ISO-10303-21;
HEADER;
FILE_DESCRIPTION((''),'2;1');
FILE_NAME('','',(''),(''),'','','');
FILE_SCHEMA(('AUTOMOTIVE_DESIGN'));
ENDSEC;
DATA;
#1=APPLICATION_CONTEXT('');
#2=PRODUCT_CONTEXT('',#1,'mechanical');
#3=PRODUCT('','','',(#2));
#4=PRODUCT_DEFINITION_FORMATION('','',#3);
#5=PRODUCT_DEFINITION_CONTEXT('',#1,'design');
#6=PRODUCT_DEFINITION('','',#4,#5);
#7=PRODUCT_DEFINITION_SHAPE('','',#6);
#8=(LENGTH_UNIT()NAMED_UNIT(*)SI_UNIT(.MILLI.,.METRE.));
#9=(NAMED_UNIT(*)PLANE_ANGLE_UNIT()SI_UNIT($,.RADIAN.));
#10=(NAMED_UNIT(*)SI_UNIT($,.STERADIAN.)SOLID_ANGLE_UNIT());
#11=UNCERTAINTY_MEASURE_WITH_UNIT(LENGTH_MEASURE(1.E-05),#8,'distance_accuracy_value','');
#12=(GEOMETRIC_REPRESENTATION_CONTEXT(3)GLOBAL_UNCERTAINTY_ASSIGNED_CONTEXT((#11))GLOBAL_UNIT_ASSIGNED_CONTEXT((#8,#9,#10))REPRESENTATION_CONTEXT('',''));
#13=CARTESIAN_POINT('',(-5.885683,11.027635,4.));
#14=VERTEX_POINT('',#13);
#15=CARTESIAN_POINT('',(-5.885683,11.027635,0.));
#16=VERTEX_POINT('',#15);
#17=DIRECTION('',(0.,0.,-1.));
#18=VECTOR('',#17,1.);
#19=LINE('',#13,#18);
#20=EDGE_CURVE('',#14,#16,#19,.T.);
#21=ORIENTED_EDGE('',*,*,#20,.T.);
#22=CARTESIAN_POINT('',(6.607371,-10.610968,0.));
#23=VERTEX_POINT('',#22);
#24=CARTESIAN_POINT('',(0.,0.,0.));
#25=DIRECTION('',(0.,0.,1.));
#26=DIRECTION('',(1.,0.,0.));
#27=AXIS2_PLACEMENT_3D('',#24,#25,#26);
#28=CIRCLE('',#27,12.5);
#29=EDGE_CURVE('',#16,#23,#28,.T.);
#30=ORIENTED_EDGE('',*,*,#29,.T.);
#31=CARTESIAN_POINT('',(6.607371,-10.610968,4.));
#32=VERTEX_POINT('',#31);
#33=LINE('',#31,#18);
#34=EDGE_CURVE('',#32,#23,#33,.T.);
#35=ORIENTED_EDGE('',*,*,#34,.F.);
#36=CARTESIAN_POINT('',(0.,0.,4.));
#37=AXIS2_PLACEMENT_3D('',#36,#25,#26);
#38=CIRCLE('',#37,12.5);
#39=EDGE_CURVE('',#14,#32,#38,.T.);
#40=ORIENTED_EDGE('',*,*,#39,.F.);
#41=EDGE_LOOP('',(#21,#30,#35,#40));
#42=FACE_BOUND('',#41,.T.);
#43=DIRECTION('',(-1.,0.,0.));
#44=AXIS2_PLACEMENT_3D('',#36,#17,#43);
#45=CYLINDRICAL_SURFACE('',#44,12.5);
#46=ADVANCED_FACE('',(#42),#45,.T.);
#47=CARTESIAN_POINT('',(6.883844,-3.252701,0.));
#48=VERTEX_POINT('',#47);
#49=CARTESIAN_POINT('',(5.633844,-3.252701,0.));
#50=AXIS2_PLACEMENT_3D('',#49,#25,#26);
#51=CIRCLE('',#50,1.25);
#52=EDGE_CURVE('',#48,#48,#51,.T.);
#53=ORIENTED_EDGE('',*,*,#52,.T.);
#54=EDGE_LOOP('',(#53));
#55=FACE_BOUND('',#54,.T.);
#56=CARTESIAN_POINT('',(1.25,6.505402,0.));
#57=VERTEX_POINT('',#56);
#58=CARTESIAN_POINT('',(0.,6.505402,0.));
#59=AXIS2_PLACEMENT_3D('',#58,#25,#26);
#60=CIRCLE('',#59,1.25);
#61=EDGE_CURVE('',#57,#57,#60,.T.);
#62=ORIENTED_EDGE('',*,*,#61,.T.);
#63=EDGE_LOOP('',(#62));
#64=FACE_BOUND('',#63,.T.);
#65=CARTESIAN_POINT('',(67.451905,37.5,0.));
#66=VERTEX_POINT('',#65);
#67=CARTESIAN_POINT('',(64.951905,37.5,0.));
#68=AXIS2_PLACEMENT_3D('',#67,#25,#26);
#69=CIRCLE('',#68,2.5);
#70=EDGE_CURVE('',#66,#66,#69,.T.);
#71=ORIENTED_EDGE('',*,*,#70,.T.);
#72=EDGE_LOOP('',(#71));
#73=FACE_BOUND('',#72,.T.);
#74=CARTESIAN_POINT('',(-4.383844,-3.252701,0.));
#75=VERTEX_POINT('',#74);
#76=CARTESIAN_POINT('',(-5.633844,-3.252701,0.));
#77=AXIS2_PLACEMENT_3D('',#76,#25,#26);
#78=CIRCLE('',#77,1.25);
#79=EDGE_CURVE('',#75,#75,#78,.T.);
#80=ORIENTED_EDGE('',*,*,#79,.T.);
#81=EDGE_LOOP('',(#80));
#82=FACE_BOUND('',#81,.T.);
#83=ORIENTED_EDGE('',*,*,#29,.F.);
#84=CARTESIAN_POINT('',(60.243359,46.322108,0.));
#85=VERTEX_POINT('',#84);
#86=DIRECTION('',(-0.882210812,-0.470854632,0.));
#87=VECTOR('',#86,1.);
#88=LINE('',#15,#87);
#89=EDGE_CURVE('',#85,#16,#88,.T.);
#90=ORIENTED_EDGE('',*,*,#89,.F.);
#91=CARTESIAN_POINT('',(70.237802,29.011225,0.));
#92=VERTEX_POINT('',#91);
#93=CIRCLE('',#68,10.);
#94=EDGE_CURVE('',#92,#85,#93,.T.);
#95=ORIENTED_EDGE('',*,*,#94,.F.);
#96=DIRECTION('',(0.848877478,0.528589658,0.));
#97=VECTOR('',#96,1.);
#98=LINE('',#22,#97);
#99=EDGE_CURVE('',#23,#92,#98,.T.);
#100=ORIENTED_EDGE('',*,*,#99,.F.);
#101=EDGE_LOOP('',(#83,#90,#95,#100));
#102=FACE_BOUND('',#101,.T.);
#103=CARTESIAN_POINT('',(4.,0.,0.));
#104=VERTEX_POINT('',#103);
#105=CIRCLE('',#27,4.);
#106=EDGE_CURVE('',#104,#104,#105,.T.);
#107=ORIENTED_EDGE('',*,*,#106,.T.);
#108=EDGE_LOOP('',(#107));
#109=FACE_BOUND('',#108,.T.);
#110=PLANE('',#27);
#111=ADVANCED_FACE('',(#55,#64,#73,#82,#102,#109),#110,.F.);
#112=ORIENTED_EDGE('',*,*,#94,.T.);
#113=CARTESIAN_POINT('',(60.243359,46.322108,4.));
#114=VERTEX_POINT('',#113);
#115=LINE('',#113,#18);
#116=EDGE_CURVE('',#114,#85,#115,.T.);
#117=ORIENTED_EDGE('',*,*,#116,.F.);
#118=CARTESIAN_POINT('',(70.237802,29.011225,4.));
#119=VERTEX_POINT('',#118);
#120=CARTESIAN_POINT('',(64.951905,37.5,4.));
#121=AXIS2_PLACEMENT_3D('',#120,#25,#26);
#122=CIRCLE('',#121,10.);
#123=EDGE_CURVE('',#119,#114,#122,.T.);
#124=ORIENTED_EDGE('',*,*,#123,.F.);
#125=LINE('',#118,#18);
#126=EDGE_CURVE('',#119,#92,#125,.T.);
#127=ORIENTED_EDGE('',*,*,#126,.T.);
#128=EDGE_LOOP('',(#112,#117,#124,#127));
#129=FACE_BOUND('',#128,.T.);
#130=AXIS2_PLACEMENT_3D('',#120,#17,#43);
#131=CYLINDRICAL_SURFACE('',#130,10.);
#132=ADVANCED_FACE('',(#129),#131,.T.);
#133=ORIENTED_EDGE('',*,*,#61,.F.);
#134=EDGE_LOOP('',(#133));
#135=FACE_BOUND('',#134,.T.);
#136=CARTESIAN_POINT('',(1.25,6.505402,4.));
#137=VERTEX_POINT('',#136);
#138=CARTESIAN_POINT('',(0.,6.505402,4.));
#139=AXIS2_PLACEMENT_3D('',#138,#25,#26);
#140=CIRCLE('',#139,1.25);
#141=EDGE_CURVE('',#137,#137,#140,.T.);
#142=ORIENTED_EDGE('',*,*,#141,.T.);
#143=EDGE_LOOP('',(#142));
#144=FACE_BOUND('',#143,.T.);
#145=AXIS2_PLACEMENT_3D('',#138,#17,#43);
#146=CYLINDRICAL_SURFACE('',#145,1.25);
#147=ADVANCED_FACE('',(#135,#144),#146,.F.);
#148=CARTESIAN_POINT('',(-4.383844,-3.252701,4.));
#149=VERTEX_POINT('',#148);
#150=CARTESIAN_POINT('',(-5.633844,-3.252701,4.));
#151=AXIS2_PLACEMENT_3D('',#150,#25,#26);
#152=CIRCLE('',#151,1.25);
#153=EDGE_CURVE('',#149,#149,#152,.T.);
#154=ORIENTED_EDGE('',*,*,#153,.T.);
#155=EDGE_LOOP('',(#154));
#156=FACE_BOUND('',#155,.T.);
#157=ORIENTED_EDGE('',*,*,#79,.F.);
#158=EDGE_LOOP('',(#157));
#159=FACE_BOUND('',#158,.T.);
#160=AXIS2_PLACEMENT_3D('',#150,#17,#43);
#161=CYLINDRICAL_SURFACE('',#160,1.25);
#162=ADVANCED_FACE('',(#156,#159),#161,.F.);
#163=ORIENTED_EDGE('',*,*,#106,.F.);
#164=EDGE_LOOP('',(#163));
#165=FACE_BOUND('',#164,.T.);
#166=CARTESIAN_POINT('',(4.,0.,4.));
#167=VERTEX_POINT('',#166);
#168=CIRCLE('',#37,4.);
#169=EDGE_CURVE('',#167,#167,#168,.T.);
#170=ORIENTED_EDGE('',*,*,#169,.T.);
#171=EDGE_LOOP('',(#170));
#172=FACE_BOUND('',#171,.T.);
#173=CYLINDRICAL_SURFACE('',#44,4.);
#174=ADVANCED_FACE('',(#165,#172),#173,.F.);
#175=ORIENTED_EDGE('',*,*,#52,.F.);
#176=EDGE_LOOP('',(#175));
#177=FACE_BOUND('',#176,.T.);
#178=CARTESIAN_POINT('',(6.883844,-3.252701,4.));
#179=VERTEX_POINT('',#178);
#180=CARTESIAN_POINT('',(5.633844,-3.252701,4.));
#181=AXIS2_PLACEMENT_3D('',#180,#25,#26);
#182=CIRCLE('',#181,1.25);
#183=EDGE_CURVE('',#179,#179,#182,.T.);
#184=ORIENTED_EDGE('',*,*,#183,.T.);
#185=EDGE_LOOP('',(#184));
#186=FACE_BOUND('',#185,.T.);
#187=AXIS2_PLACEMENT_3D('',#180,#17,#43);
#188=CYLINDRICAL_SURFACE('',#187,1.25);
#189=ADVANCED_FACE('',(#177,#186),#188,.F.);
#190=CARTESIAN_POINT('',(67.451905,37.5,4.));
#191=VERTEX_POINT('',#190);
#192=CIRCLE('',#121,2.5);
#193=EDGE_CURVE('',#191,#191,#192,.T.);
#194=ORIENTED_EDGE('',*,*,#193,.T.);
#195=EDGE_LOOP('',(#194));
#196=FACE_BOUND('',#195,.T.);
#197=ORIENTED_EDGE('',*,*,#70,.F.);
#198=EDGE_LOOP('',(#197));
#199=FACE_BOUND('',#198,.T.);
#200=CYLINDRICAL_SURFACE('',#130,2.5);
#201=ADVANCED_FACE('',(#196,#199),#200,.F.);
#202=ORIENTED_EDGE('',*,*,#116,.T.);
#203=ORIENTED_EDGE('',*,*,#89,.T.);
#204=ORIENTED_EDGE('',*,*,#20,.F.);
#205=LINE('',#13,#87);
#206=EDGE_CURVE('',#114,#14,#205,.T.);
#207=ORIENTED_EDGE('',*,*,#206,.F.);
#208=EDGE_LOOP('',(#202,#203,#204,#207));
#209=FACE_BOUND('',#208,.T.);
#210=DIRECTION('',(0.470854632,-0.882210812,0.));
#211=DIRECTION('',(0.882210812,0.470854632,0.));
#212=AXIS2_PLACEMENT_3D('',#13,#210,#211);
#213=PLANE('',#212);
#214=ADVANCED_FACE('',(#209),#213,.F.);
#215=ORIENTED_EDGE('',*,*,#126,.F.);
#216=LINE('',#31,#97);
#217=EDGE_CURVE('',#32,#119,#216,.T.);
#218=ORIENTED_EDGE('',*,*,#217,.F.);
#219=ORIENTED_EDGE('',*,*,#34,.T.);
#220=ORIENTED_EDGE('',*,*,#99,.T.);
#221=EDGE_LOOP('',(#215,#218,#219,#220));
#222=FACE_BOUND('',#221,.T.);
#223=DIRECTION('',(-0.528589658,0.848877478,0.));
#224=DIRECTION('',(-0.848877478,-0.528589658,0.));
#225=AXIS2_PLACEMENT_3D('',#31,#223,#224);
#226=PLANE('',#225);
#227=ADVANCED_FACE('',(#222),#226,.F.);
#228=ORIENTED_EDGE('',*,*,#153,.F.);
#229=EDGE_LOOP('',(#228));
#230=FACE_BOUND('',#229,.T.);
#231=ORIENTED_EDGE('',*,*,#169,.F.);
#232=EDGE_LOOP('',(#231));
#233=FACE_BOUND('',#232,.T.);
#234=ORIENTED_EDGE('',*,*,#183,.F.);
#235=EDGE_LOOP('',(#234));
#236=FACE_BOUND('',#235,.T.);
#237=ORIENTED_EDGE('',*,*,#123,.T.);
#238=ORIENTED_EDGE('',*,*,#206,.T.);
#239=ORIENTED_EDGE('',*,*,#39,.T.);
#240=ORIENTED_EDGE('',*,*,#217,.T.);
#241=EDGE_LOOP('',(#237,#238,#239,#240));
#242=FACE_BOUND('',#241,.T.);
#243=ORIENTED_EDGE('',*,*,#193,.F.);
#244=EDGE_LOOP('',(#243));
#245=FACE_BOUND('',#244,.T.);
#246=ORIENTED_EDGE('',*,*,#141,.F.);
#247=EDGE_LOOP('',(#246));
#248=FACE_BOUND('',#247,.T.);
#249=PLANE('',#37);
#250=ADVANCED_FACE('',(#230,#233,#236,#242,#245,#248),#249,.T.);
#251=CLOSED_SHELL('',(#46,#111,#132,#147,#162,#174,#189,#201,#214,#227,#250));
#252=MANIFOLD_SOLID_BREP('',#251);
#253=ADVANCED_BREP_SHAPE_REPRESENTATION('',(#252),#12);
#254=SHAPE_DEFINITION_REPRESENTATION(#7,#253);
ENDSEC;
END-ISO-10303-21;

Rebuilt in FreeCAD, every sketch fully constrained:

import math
import FreeCAD as App
import Part
import Sketcher
from FreeCAD import Vector

doc = App.newDocument("Part")
params = doc.addObject("Spreadsheet::Sheet", "Params")
for row, (alias, value) in enumerate([
    ("sketch1_diameter", "8 mm"),
    ("sketch1_diameter2", "5 mm"),
    ("sketch1_radius", "10 mm"),
    ("sketch1_diameter3", "2.5 mm"),
    ("sketch1_radius2", "12.5 mm"),
    ("pad1_length", "4 mm"),
], start=1):
    params.set(f"A{row}", alias)
    params.set(f"B{row}", "=" + value)
    params.setAlias(f"B{row}", alias)

body = doc.addObject("PartDesign::Body", "Body")

# Sketch on XY plane
sketch1 = body.newObject("Sketcher::SketchObject", "Sketch")
sketch1.AttachmentSupport = (doc.getObject("XY_Plane"), [""])
sketch1.MapMode = "FlatFace"
sketch1.addGeometry(Part.ArcOfCircle(Part.Circle(Vector(0, 0, 0), Vector(0, 0, 1), 12.5), math.radians(118), math.radians(302)), False)
sketch1.addGeometry(Part.LineSegment(Vector(6.6, -10.6, 0), Vector(70.2, 29, 0)), False)
sketch1.addGeometry(Part.ArcOfCircle(Part.Circle(Vector(65, 37.5, 0), Vector(0, 0, 1), 10), math.radians(-58), math.radians(118)), False)
sketch1.addGeometry(Part.LineSegment(Vector(60.2, 46.3, 0), Vector(-5.9, 11, 0)), False)
sketch1.addGeometry(Part.Circle(Vector(-5.6, -3.3, 0), Vector(0, 0, 1), 1.2), False)
sketch1.addGeometry(Part.Circle(Vector(5.6, -3.3, 0), Vector(0, 0, 1), 1.2), False)
sketch1.addGeometry(Part.Circle(Vector(0, 0, 0), Vector(0, 0, 1), 4), False)
sketch1.addGeometry(Part.Circle(Vector(0, 6.5, 0), Vector(0, 0, 1), 1.2), False)
sketch1.addGeometry(Part.Circle(Vector(65, 37.5, 0), Vector(0, 0, 1), 2.5), False)
sketch1.addConstraint(Sketcher.Constraint("Tangent", 0, 2, 1, 1))
sketch1.addConstraint(Sketcher.Constraint("Tangent", 1, 2, 2, 1))
sketch1.addConstraint(Sketcher.Constraint("Tangent", 2, 2, 3, 1))
sketch1.addConstraint(Sketcher.Constraint("Tangent", 3, 2, 0, 1))
sketch1.addConstraint(Sketcher.Constraint("Coincident", 0, 3, -1, 1))
sketch1.addConstraint(Sketcher.Constraint("Coincident", 6, 3, -1, 1))
sketch1.addConstraint(Sketcher.Constraint("Coincident", 8, 3, 2, 3))
sketch1.addConstraint(Sketcher.Constraint("Equal", 4, 5))
sketch1.addConstraint(Sketcher.Constraint("Equal", 5, 7))
sketch1.addConstraint(Sketcher.Constraint("Symmetric", 4, 3, 5, 3, -2))
sketch1.addConstraint(Sketcher.Constraint("PointOnObject", 7, 3, -2))
sketch1.addConstraint(Sketcher.Constraint("Diameter", 6, 8.0))
sketch1.addConstraint(Sketcher.Constraint("Diameter", 8, 5.0))
sketch1.addConstraint(Sketcher.Constraint("Radius", 2, 10.0))
sketch1.addConstraint(Sketcher.Constraint("Diameter", 4, 2.5))
sketch1.addConstraint(Sketcher.Constraint("Radius", 0, 12.5))
sketch1.addConstraint(Sketcher.Constraint("DistanceY", -1, 1, 2, 3, 37.5))
sketch1.addConstraint(Sketcher.Constraint("DistanceY", 4, 3, -1, 1, 3.252701))
sketch1.addConstraint(Sketcher.Constraint("DistanceX", -1, 1, 1, 2, 70.237802))
sketch1.addConstraint(Sketcher.Constraint("DistanceX", 4, 3, 2, 3, 70.585749))
sketch1.addConstraint(Sketcher.Constraint("DistanceY", 0, 2, 7, 3, 17.116371))
sketch1.setExpression("Constraints[11]", "Params.sketch1_diameter")
sketch1.setExpression("Constraints[12]", "Params.sketch1_diameter2")
sketch1.setExpression("Constraints[13]", "Params.sketch1_radius")
sketch1.setExpression("Constraints[14]", "Params.sketch1_diameter3")
sketch1.setExpression("Constraints[15]", "Params.sketch1_radius2")
pad1 = body.newObject("PartDesign::Pad", "Pad")
pad1.Profile = sketch1
pad1.setExpression("Length", "Params.pad1_length")

doc.recompute()
